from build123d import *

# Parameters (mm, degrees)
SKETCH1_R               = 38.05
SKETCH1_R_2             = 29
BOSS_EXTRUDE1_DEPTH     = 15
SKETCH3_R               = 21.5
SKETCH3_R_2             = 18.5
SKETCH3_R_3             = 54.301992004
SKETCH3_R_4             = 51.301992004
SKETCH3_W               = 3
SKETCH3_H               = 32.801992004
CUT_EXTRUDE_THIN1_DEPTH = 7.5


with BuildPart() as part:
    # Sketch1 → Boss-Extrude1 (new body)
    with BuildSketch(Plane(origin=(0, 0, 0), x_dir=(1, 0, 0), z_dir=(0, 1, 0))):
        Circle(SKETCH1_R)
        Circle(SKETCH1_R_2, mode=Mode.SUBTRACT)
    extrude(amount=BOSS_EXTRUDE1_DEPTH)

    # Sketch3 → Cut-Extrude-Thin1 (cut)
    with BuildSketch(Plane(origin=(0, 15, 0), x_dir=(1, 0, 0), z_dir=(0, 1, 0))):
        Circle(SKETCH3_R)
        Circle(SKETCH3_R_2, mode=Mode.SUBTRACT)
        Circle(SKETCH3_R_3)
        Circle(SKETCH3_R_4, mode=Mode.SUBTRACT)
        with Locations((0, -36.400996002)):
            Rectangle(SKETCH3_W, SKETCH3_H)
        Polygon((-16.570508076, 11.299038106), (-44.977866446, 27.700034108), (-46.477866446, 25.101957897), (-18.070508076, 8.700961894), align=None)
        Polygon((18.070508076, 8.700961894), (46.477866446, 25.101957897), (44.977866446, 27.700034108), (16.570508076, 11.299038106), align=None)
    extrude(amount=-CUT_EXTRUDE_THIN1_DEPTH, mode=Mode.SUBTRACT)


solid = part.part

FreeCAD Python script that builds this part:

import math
import FreeCAD as App
import Part
import Sketcher
Q = App.Units.Quantity

doc = App.newDocument("Part")
body = doc.addObject("PartDesign::Body", "Body")

sketch1 = body.newObject("Sketcher::SketchObject", "Sketch")
sketch1.AttachmentSupport = (doc.getObject("XZ_Plane"), [""])
sketch1.MapMode = "FlatFace"
sketch1.addGeometry(Part.Circle(App.Vector(0, 0, 0), App.Vector(0, 0, 1), 38), False)
sketch1.addGeometry(Part.Circle(App.Vector(0, 0, 0), App.Vector(0, 0, 1), 29), False)
sketch1.addConstraint(Sketcher.Constraint("Coincident", 0, 3, -1, 1))
sketch1.addConstraint(Sketcher.Constraint("Coincident", 1, 3, -1, 1))
sketch1.addConstraint(Sketcher.Constraint("Diameter", 1, 58.0))
sketch1.addConstraint(Sketcher.Constraint("Diameter", 0, 76.1))
pad1 = body.newObject("PartDesign::Pad", "Pad")
pad1.Profile = sketch1
pad1.Length = 15
pad1.Reversed = True

sketch2 = body.newObject("Sketcher::SketchObject", "Sketch001")
sketch2.AttachmentSupport = (doc.getObject("XZ_Plane"), [""])
sketch2.MapMode = "FlatFace"
sketch2.AttachmentOffset = App.Placement(App.Vector(0, 0, -15), App.Rotation())
sketch2.addGeometry(Part.Circle(App.Vector(0, 0, 0), App.Vector(0, 0, 1), 54.3), False)
sketch2.addGeometry(Part.LineSegment(App.Vector(-1.5, 20, 0), App.Vector(-1.5, 51.3, 0)), False)
sketch2.addGeometry(Part.ArcOfCircle(Part.Circle(App.Vector(0, 0, 0), App.Vector(0, 0, 1), 51.3), math.radians(92), math.radians(208)), False)
sketch2.addGeometry(Part.LineSegment(App.Vector(-45.2, -24.3, 0), App.Vector(-18.1, -8.7, 0)), False)
sketch2.addGeometry(Part.LineSegment(App.Vector(-18.1, -8.7, 0), App.Vector(-16.6, -11.3, 0)), False)
sketch2.addGeometry(Part.LineSegment(App.Vector(-16.6, -11.3, 0), App.Vector(-43.7, -26.9, 0)), False)
sketch2.addGeometry(Part.ArcOfCircle(Part.Circle(App.Vector(0, 0, 0), App.Vector(0, 0, 1), 51.3), math.radians(-148), math.radians(-32)), False)
sketch2.addGeometry(Part.LineSegment(App.Vector(43.7, -26.9, 0), App.Vector(16.6, -11.3, 0)), False)
sketch2.addGeometry(Part.LineSegment(App.Vector(16.6, -11.3, 0), App.Vector(18.1, -8.7, 0)), False)
sketch2.addGeometry(Part.LineSegment(App.Vector(18.1, -8.7, 0), App.Vector(45.2, -24.3, 0)), False)
sketch2.addGeometry(Part.ArcOfCircle(Part.Circle(App.Vector(0, 0, 0), App.Vector(0, 0, 1), 51.3), math.radians(-28), math.radians(88)), False)
sketch2.addGeometry(Part.LineSegment(App.Vector(1.5, 51.3, 0), App.Vector(1.5, 20, 0)), False)
sketch2.addGeometry(Part.LineSegment(App.Vector(1.5, 20, 0), App.Vector(-1.5, 20, 0)), False)
sketch2.addConstraint(Sketcher.Constraint("Coincident", 1, 2, 2, 1))
sketch2.addConstraint(Sketcher.Constraint("Coincident", 2, 2, 3, 1))
sketch2.addConstraint(Sketcher.Constraint("Coincident", 3, 2, 4, 1))
sketch2.addConstraint(Sketcher.Constraint("Coincident", 4, 2, 5, 1))
sketch2.addConstraint(Sketcher.Constraint("Coincident", 5, 2, 6, 1))
sketch2.addConstraint(Sketcher.Constraint("Coincident", 6, 2, 7, 1))
sketch2.addConstraint(Sketcher.Constraint("Coincident", 7, 2, 8, 1))
sketch2.addConstraint(Sketcher.Constraint("Coincident", 8, 2, 9, 1))
sketch2.addConstraint(Sketcher.Constraint("Coincident", 9, 2, 10, 1))
sketch2.addConstraint(Sketcher.Constraint("Coincident", 10, 2, 11, 1))
sketch2.addConstraint(Sketcher.Constraint("Coincident", 11, 2, 12, 1))
sketch2.addConstraint(Sketcher.Constraint("Coincident", 12, 2, 1, 1))
sketch2.addConstraint(Sketcher.Constraint("Vertical", 1))
sketch2.addConstraint(Sketcher.Constraint("Vertical", 11))
sketch2.addConstraint(Sketcher.Constraint("Horizontal", 12))
sketch2.addConstraint(Sketcher.Constraint("Coincident", 0, 3, -1, 1))
sketch2.addConstraint(Sketcher.Constraint("Coincident", 2, 3, -1, 1))
sketch2.addConstraint(Sketcher.Constraint("Coincident", 6, 3, -1, 1))
sketch2.addConstraint(Sketcher.Constraint("Coincident", 10, 3, -1, 1))
sketch2.addConstraint(Sketcher.Constraint("Equal", 2, 6))
sketch2.addConstraint(Sketcher.Constraint("Equal", 6, 10))
sketch2.addConstraint(Sketcher.Constraint("Symmetric", 4, 2, 7, 2, -2))
sketch2.addConstraint(Sketcher.Constraint("Symmetric", 3, 2, 8, 2, -2))
sketch2.addConstraint(Sketcher.Constraint("Perpendicular", 3, 4))
sketch2.addConstraint(Sketcher.Constraint("Perpendicular", 4, 5))
sketch2.addConstraint(Sketcher.Constraint("Perpendicular", 7, 8))
sketch2.addConstraint(Sketcher.Constraint("Perpendicular", 8, 9))
sketch2.addConstraint(Sketcher.Constraint("Horizontal", 1, 2, 10, 2))
sketch2.addConstraint(Sketcher.Constraint("Equal", 3, 5))
sketch2.addConstraint(Sketcher.Constraint("DistanceX", 12, 2, 12, 1, 3.0))
sketch2.addConstraint(Sketcher.Constraint("Angle", 3, Q("30 deg")))
sketch2.addConstraint(Sketcher.Constraint("Distance", 4, 3.0))
sketch2.addConstraint(Sketcher.Constraint("DistanceY", -1, 1, 11, 2, 20.0))
sketch2.addConstraint(Sketcher.Constraint("Diameter", 0, 108.603984))
sketch2.addConstraint(Sketcher.Constraint("Radius", 2, 51.301992))
sketch2.addConstraint(Sketcher.Constraint("Distance", 3, 31.280058))
pocket1 = body.newObject("PartDesign::Pocket", "Pocket")
pocket1.Profile = sketch2
pocket1.Length = 7.5
pocket1.Reversed = True

doc.recompute()
